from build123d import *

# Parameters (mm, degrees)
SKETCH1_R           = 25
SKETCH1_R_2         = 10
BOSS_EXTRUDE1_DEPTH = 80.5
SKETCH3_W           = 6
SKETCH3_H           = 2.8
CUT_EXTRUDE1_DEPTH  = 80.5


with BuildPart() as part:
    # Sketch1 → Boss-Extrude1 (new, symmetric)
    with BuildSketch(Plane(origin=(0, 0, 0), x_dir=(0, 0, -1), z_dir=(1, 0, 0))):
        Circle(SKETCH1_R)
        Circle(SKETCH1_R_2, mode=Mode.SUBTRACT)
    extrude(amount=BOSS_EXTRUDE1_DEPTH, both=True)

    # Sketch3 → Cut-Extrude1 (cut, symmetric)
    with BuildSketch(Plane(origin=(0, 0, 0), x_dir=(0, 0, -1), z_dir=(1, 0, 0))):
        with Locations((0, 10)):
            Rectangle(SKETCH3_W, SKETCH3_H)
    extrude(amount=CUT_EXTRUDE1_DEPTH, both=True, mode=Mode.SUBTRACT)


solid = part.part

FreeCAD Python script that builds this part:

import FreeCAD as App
import Part
import Sketcher

V = App.Vector
Q = App.Units.Quantity

doc = App.newDocument("Part")
body = doc.addObject("PartDesign::Body", "Body")

sketch1 = body.newObject("Sketcher::SketchObject", "Sketch")
sketch1.AttachmentSupport = (doc.getObject("YZ_Plane"), [""])
sketch1.MapMode = "FlatFace"
sketch1.addGeometry([
    Part.Circle(V(0, 0, 0), V(0, 0, 1), 25),
    Part.Circle(V(0, 0, 0), V(0, 0, 1), 10),
], False)
sketch1.addConstraint([
    Sketcher.Constraint("Coincident", 0, 3, -1, 1),
    Sketcher.Constraint("Coincident", 1, 3, -1, 1),
    Sketcher.Constraint("Diameter", 0, Q("50 mm")),
    Sketcher.Constraint("Diameter", 1, Q("20 mm")),
])
pad1 = body.newObject("PartDesign::Pad", "Pad")
pad1.Profile = sketch1
pad1.Length = 161
pad1.Midplane = True

sketch2 = body.newObject("Sketcher::SketchObject", "Sketch001")
sketch2.AttachmentSupport = (doc.getObject("YZ_Plane"), [""])
sketch2.MapMode = "FlatFace"
sketch2.addGeometry([
    Part.LineSegment(V(11.4, 3, 0), V(8.6, 3, 0)),
    Part.LineSegment(V(8.6, 3, 0), V(8.6, -3, 0)),
    Part.LineSegment(V(8.6, -3, 0), V(11.4, -3, 0)),
    Part.LineSegment(V(11.4, -3, 0), V(11.4, 3, 0)),
], False)
sketch2.addConstraint([
    Sketcher.Constraint("Coincident", 0, 2, 1, 1),
    Sketcher.Constraint("Coincident", 1, 2, 2, 1),
    Sketcher.Constraint("Coincident", 2, 2, 3, 1),
    Sketcher.Constraint("Coincident", 3, 2, 0, 1),
    Sketcher.Constraint("Horizontal", 0),
    Sketcher.Constraint("Vertical", 1),
    Sketcher.Constraint("Horizontal", 2),
    Sketcher.Constraint("Vertical", 3),
    Sketcher.Constraint("DistanceY", 1, 2, 1, 1, Q("6 mm")),
    Sketcher.Constraint("DistanceX", 0, 2, 0, 1, Q("2.8 mm")),
    Sketcher.Constraint("DistanceY", -1, 1, 0, 2, Q("3 mm")),
    Sketcher.Constraint("DistanceX", -1, 1, 0, 2, Q("8.6 mm")),
])
pocket1 = body.newObject("PartDesign::Pocket", "Pocket")
pocket1.Profile = sketch2
pocket1.Length = 161
pocket1.Midplane = True

doc.recompute()
